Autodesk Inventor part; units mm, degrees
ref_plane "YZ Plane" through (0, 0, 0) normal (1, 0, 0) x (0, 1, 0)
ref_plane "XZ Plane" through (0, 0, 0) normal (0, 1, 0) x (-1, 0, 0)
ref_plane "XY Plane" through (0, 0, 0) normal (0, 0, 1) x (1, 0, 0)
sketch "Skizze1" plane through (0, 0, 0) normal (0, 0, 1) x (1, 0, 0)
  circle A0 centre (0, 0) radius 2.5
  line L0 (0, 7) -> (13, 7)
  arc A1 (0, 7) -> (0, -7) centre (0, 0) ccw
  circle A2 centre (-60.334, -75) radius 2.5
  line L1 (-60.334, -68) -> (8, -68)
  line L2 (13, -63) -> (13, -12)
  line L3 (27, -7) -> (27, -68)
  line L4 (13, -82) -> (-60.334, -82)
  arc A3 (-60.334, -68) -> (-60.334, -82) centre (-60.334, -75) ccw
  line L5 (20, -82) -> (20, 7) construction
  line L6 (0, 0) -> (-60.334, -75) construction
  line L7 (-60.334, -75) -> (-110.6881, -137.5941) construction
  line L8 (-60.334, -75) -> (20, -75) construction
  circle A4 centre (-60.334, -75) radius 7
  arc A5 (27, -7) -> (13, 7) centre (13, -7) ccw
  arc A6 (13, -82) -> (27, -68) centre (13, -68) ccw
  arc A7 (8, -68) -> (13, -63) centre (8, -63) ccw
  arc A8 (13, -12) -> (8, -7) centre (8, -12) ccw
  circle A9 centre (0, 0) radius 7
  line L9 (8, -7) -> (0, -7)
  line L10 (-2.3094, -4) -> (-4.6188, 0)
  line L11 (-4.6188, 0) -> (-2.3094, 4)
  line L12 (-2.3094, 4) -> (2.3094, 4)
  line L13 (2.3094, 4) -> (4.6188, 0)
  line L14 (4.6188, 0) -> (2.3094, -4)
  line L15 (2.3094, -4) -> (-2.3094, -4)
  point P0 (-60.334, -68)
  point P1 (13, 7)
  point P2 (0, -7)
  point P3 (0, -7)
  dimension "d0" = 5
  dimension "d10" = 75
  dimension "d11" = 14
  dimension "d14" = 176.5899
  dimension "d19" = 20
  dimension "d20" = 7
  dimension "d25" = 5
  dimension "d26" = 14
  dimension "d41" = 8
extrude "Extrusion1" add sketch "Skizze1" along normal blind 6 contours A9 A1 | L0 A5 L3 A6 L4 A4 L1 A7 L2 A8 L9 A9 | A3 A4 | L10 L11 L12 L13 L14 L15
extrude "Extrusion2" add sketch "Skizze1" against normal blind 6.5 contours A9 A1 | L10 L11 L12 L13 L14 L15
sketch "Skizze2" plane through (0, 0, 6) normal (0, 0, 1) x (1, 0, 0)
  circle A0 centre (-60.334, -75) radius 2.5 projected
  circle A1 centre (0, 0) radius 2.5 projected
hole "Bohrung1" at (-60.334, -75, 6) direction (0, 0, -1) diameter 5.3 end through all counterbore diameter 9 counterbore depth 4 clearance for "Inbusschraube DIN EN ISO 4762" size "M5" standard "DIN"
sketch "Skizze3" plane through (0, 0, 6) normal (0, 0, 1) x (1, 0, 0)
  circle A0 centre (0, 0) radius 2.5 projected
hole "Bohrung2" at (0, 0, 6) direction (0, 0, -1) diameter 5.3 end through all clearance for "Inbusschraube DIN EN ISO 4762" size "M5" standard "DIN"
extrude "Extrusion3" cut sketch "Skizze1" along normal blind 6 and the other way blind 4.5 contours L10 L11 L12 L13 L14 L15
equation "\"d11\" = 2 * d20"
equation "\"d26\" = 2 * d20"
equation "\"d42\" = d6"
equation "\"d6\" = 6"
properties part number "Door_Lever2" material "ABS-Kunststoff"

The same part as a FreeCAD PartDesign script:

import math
import FreeCAD as App
import Part
import Sketcher
Q = App.Units.Quantity


def add_polygon(sketch, points):
    """Adds a closed chain of lines whose ends are joined by coincident constraints."""
    first, n = sketch.GeometryCount, len(points)
    for a, b in zip(points, points[1:] + points[:1]):
        sketch.addGeometry(Part.LineSegment(App.Vector(*a, 0), App.Vector(*b, 0)), False)
    for i in range(n):
        sketch.addConstraint(Sketcher.Constraint("Coincident", first + i, 2, first + (i + 1) % n, 1))

doc = App.newDocument("Part")
params = doc.addObject("Spreadsheet::Sheet", "Params")
for row, (alias, value) in enumerate([
    ("sketch1_diameter", "5 mm"),
    ("sketch1_radius", "7 mm"),
    ("sketch1_radius2", "5 mm"),
    ("sketch1_width", "8 mm"),
    ("pad1_length", "6 mm"),
    ("sketch2_diameter", "14 mm"),
    ("sketch2_diameter2", "5 mm"),
    ("pad2_length", "6.5 mm"),
    ("sketch3_diameter", "5.3 mm"),
    ("hole_diameter", "5.3 mm"),
    ("hole_cbore_diameter", "9 mm"),
    ("hole_cbore_depth", "4 mm"),
    ("sketch4_diameter", "5.3 mm"),
    ("hole2_diameter", "5.3 mm"),
    ("sketch5_diameter", "5 mm"),
    ("pocket1_length", "6 mm"),
    ("pocket1_length2", "4.5 mm"),
], start=1):
    params.set(f"A{row}", alias)
    params.set(f"B{row}", "=" + value)
    params.setAlias(f"B{row}", alias)

body = doc.addObject("PartDesign::Body", "Body")

sketch1 = body.newObject("Sketcher::SketchObject", "Sketch")
sketch1.AttachmentSupport = (doc.getObject("XY_Plane"), [""])
sketch1.MapMode = "FlatFace"
sketch1.addGeometry(Part.ArcOfCircle(Part.Circle(App.Vector(0, 0, 0), App.Vector(0, 0, 1), 7), math.radians(90), math.radians(270)), False)
sketch1.addGeometry(Part.LineSegment(App.Vector(0, -7, 0), App.Vector(8, -7, 0)), False)
sketch1.addGeometry(Part.ArcOfCircle(Part.Circle(App.Vector(8, -12, 0), App.Vector(0, 0, 1), 5), math.radians(0), math.radians(90)), False)
sketch1.addGeometry(Part.LineSegment(App.Vector(13, -12, 0), App.Vector(13, -63, 0)), False)
sketch1.addGeometry(Part.ArcOfCircle(Part.Circle(App.Vector(8, -63, 0), App.Vector(0, 0, 1), 5), math.radians(-90), math.radians(0)), False)
sketch1.addGeometry(Part.LineSegment(App.Vector(8, -68, 0), App.Vector(-60.3, -68, 0)), False)
sketch1.addGeometry(Part.ArcOfCircle(Part.Circle(App.Vector(-60.3, -75, 0), App.Vector(0, 0, 1), 7), math.radians(90), math.radians(270)), False)
sketch1.addGeometry(Part.LineSegment(App.Vector(-60.3, -82, 0), App.Vector(13, -82, 0)), False)
sketch1.addGeometry(Part.ArcOfCircle(Part.Circle(App.Vector(13, -68, 0), App.Vector(0, 0, 1), 14), math.radians(-90), math.radians(0)), False)
sketch1.addGeometry(Part.LineSegment(App.Vector(27, -68, 0), App.Vector(27, -7, 0)), False)
sketch1.addGeometry(Part.ArcOfCircle(Part.Circle(App.Vector(13, -7, 0), App.Vector(0, 0, 1), 14), math.radians(0), math.radians(90)), False)
sketch1.addGeometry(Part.LineSegment(App.Vector(13, 7, 0), App.Vector(0, 7, 0)), False)
sketch1.addGeometry(Part.Circle(App.Vector(0, 0, 0), App.Vector(0, 0, 1), 2.5), False)
sketch1.addGeometry(Part.Circle(App.Vector(-60.3, -75, 0), App.Vector(0, 0, 1), 2.5), False)
sketch1.addConstraint(Sketcher.Constraint("Tangent", 0, 2, 1, 1))
sketch1.addConstraint(Sketcher.Constraint("Tangent", 1, 2, 2, 2))
sketch1.addConstraint(Sketcher.Constraint("Tangent", 2, 1, 3, 1))
sketch1.addConstraint(Sketcher.Constraint("Tangent", 3, 2, 4, 2))
sketch1.addConstraint(Sketcher.Constraint("Tangent", 4, 1, 5, 1))
sketch1.addConstraint(Sketcher.Constraint("Tangent", 5, 2, 6, 1))
sketch1.addConstraint(Sketcher.Constraint("Tangent", 6, 2, 7, 1))
sketch1.addConstraint(Sketcher.Constraint("Tangent", 7, 2, 8, 1))
sketch1.addConstraint(Sketcher.Constraint("Tangent", 8, 2, 9, 1))
sketch1.addConstraint(Sketcher.Constraint("Tangent", 9, 2, 10, 1))
sketch1.addConstraint(Sketcher.Constraint("Tangent", 10, 2, 11, 1))
sketch1.addConstraint(Sketcher.Constraint("Tangent", 11, 2, 0, 1))
sketch1.addConstraint(Sketcher.Constraint("Horizontal", 1))
sketch1.addConstraint(Sketcher.Constraint("Vertical", 3))
sketch1.addConstraint(Sketcher.Constraint("Horizontal", 5))
sketch1.addConstraint(Sketcher.Constraint("Horizontal", 7))
sketch1.addConstraint(Sketcher.Constraint("Vertical", 9))
sketch1.addConstraint(Sketcher.Constraint("Horizontal", 11))
sketch1.addConstraint(Sketcher.Constraint("Coincident", 0, 3, -1, 1))
sketch1.addConstraint(Sketcher.Constraint("Coincident", 12, 3, -1, 1))
sketch1.addConstraint(Sketcher.Constraint("Coincident", 13, 3, 6, 3))
sketch1.addConstraint(Sketcher.Constraint("Equal", 2, 4))
sketch1.addConstraint(Sketcher.Constraint("Equal", 0, 6))
sketch1.addConstraint(Sketcher.Constraint("Equal", 8, 10))
sketch1.addConstraint(Sketcher.Constraint("Equal", 12, 13))
sketch1.addConstraint(Sketcher.Constraint("Horizontal", 10, 3, 0, 2))
sketch1.addConstraint(Sketcher.Constraint("Vertical", 10, 3, 2, 1))
sketch1.addConstraint(Sketcher.Constraint("Diameter", 12, 5.0))
sketch1.addConstraint(Sketcher.Constraint("Radius", 0, 7.0))
sketch1.addConstraint(Sketcher.Constraint("Radius", 2, 5.0))
sketch1.addConstraint(Sketcher.Constraint("DistanceX", 1, 1, 1, 2, 8.0))
sketch1.addConstraint(Sketcher.Constraint("DistanceY", 6, 3, -1, 1, 75.0))
sketch1.addConstraint(Sketcher.Constraint("DistanceX", 5, 2, 5, 1, 68.334))
sketch1.setExpression("Constraints[27]", "Params.sketch1_diameter")
sketch1.setExpression("Constraints[28]", "Params.sketch1_radius")
sketch1.setExpression("Constraints[29]", "Params.sketch1_radius2")
sketch1.setExpression("Constraints[30]", "Params.sketch1_width")
pad1 = body.newObject("PartDesign::Pad", "Pad")
pad1.Profile = sketch1
pad1.setExpression("Length", "Params.pad1_length")

sketch2 = body.newObject("Sketcher::SketchObject", "Sketch001")
sketch2.AttachmentSupport = (doc.getObject("XY_Plane"), [""])
sketch2.MapMode = "FlatFace"
sketch2.addGeometry(Part.Circle(App.Vector(0, 0, 0), App.Vector(0, 0, 1), 7), False)
sketch2.addGeometry(Part.Circle(App.Vector(0, 0, 0), App.Vector(0, 0, 1), 2.5), False)
sketch2.addConstraint(Sketcher.Constraint("Coincident", 0, 3, -1, 1))
sketch2.addConstraint(Sketcher.Constraint("Coincident", 1, 3, -1, 1))
sketch2.addConstraint(Sketcher.Constraint("Diameter", 0, 14.0))
sketch2.addConstraint(Sketcher.Constraint("Diameter", 1, 5.0))
sketch2.setExpression("Constraints[2]", "Params.sketch2_diameter")
sketch2.setExpression("Constraints[3]", "Params.sketch2_diameter2")
pad2 = body.newObject("PartDesign::Pad", "Pad001")
pad2.Profile = sketch2
pad2.setExpression("Length", "Params.pad2_length")
pad2.Reversed = True

sketch3 = body.newObject("Sketcher::SketchObject", "Sketch002")
sketch3.AttachmentSupport = (doc.getObject("XY_Plane"), [""])
sketch3.MapMode = "FlatFace"
sketch3.AttachmentOffset = App.Placement(App.Vector(0, 0, 6), App.Rotation())
sketch3.addGeometry(Part.Circle(App.Vector(-60.3, -75, 0), App.Vector(0, 0, 1), 2.6), False)
sketch3.addConstraint(Sketcher.Constraint("Diameter", 0, 5.3))
sketch3.addConstraint(Sketcher.Constraint("DistanceY", 0, 3, -1, 1, 75.0))
sketch3.addConstraint(Sketcher.Constraint("DistanceX", 0, 3, -1, 1, 60.334))
sketch3.setExpression("Constraints[0]", "Params.sketch3_diameter")
doc.recompute()
hole = body.newObject("PartDesign::Hole", "Hole")
hole.Profile = sketch3
hole.ThreadType = "None"
hole.setExpression("Diameter", "Params.hole_diameter")
hole.DepthType = "ThroughAll"
hole.HoleCutType = "Counterbore"
hole.setExpression("HoleCutDiameter", "Params.hole_cbore_diameter")
hole.setExpression("HoleCutDepth", "Params.hole_cbore_depth")

sketch4 = body.newObject("Sketcher::SketchObject", "Sketch003")
sketch4.AttachmentSupport = (doc.getObject("XY_Plane"), [""])
sketch4.MapMode = "FlatFace"
sketch4.AttachmentOffset = App.Placement(App.Vector(0, 0, 6), App.Rotation())
sketch4.addGeometry(Part.Circle(App.Vector(0, 0, 0), App.Vector(0, 0, 1), 2.6), False)
sketch4.addConstraint(Sketcher.Constraint("Coincident", 0, 3, -1, 1))
sketch4.addConstraint(Sketcher.Constraint("Diameter", 0, 5.3))
sketch4.setExpression("Constraints[1]", "Params.sketch4_diameter")
doc.recompute()
hole2 = body.newObject("PartDesign::Hole", "Hole001")
hole2.Profile = sketch4
hole2.ThreadType = "None"
hole2.setExpression("Diameter", "Params.hole2_diameter")
hole2.DepthType = "ThroughAll"

sketch5 = body.newObject("Sketcher::SketchObject", "Sketch004")
sketch5.AttachmentSupport = (doc.getObject("XY_Plane"), [""])
sketch5.MapMode = "FlatFace"
add_polygon(sketch5, [(-4.6, 0), (-2.3, -4), (2.3, -4), (4.6, 0), (2.3, 4), (-2.3, 4)])
sketch5.addGeometry(Part.Circle(App.Vector(0, 0, 0), App.Vector(0, 0, 1), 2.5), False)
sketch5.addConstraint(Sketcher.Constraint("Horizontal", 1))
sketch5.addConstraint(Sketcher.Constraint("Horizontal", 4))
sketch5.addConstraint(Sketcher.Constraint("Coincident", 6, 3, -1, 1))
sketch5.addConstraint(Sketcher.Constraint("Symmetric", 0, 2, 3, 2, -1, 1))
sketch5.addConstraint(Sketcher.Constraint("Symmetric", 2, 2, 5, 2, -1, 1))
sketch5.addConstraint(Sketcher.Constraint("PointOnObject", 2, 2, -1))
sketch5.addConstraint(Sketcher.Constraint("Parallel", 2, 5))
sketch5.addConstraint(Sketcher.Constraint("Vertical", 1, 2, 3, 2))
sketch5.addConstraint(Sketcher.Constraint("Diameter", 6, 5.0))
sketch5.addConstraint(Sketcher.Constraint("DistanceY", 1, 2, 3, 2, 8.0))
sketch5.addConstraint(Sketcher.Constraint("Angle", 0, Q("-60 deg")))
sketch5.addConstraint(Sketcher.Constraint("DistanceX", 1, 1, 1, 2, 4.6188))
sketch5.setExpression("Constraints[14]", "Params.sketch5_diameter")
pocket1 = body.newObject("PartDesign::Pocket", "Pocket")
pocket1.Profile = sketch5
pocket1.Type = "TwoLengths"
pocket1.setExpression("Length", "Params.pocket1_length")
pocket1.setExpression("Length2", "Params.pocket1_length2")
pocket1.Reversed = True

doc.recompute()
